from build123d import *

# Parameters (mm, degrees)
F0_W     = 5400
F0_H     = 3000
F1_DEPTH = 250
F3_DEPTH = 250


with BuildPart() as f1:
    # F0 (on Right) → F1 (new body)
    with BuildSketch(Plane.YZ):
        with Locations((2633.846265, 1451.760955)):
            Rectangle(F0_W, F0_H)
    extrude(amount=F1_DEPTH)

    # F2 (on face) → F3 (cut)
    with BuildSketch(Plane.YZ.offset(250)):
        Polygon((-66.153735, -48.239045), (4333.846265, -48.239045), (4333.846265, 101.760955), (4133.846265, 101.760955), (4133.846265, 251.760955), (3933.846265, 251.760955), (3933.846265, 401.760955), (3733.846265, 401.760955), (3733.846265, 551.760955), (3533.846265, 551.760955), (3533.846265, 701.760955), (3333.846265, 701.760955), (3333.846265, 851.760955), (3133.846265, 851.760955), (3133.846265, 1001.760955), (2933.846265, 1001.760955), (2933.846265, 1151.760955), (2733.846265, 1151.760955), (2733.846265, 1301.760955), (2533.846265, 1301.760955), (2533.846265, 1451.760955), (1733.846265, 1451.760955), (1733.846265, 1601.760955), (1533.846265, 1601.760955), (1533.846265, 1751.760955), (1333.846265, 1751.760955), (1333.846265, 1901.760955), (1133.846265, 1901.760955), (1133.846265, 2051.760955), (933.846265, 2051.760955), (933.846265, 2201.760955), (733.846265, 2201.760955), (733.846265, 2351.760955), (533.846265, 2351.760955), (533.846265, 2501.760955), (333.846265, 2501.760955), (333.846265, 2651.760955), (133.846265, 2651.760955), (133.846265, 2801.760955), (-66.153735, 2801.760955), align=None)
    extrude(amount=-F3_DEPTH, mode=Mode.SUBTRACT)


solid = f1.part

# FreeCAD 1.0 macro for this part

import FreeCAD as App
import Part
import Sketcher
Q = App.Units.Quantity

doc = App.newDocument("Part")
body = doc.addObject("PartDesign::Body", "Body")

# Sketch on YZ plane
sketch1 = body.newObject("Sketcher::SketchObject", "Sketch")
sketch1.AttachmentSupport = (doc.getObject("YZ_Plane"), [""])
sketch1.MapMode = "FlatFace"
sketch1.addGeometry([
    Part.LineSegment(App.Vector(-66, 2952, 0), App.Vector(-66, -48, 0)),
    Part.LineSegment(App.Vector(-66, -48, 0), App.Vector(5334, -48, 0)),
    Part.LineSegment(App.Vector(5334, -48, 0), App.Vector(5334, 2952, 0)),
    Part.LineSegment(App.Vector(5334, 2952, 0), App.Vector(-66, 2952, 0)),
], False)
sketch1.addConstraint([
    Sketcher.Constraint("Coincident", 0, 2, 1, 1),
    Sketcher.Constraint("Coincident", 1, 2, 2, 1),
    Sketcher.Constraint("Coincident", 2, 2, 3, 1),
    Sketcher.Constraint("Coincident", 3, 2, 0, 1),
    Sketcher.Constraint("Vertical", 0),
    Sketcher.Constraint("Horizontal", 1),
    Sketcher.Constraint("Vertical", 2),
    Sketcher.Constraint("Horizontal", 3),
    Sketcher.Constraint("DistanceX", 1, 1, 1, 2, Q("5400 mm")),
    Sketcher.Constraint("DistanceY", 0, 2, 0, 1, Q("3000 mm")),
    Sketcher.Constraint("DistanceX", 0, 2, -1, 1, Q("66.153735 mm")),
    Sketcher.Constraint("DistanceY", 0, 2, -1, 1, Q("48.239045 mm")),
])
pad1 = body.newObject("PartDesign::Pad", "Pad")
pad1.Profile = sketch1
pad1.Length = 250

# Sketch on YZ plane
sketch2 = body.newObject("Sketcher::SketchObject", "Sketch001")
sketch2.AttachmentSupport = (doc.getObject("YZ_Plane"), [""])
sketch2.MapMode = "FlatFace"
sketch2.AttachmentOffset = App.Placement(App.Vector(0, 0, 250), App.Rotation())
sketch2.addGeometry([
    Part.LineSegment(App.Vector(-66, -48, 0), App.Vector(4334, -48, 0)),  # 0
    Part.LineSegment(App.Vector(4334, -48, 0), App.Vector(4334, 102, 0)),  # 1
    Part.LineSegment(App.Vector(4334, 102, 0), App.Vector(4134, 102, 0)),  # 2
    Part.LineSegment(App.Vector(4134, 102, 0), App.Vector(4134, 252, 0)),  # 3
    Part.LineSegment(App.Vector(4134, 252, 0), App.Vector(3934, 252, 0)),  # 4
    Part.LineSegment(App.Vector(3934, 252, 0), App.Vector(3934, 402, 0)),  # 5
    Part.LineSegment(App.Vector(3934, 402, 0), App.Vector(3734, 402, 0)),  # 6
    Part.LineSegment(App.Vector(3734, 402, 0), App.Vector(3734, 552, 0)),  # 7
    Part.LineSegment(App.Vector(3734, 552, 0), App.Vector(3534, 552, 0)),  # 8
    Part.LineSegment(App.Vector(3534, 552, 0), App.Vector(3534, 702, 0)),  # 9
    Part.LineSegment(App.Vector(3534, 702, 0), App.Vector(3334, 702, 0)),  # 10
    Part.LineSegment(App.Vector(3334, 702, 0), App.Vector(3334, 852, 0)),  # 11
    Part.LineSegment(App.Vector(3334, 852, 0), App.Vector(3134, 852, 0)),  # 12
    Part.LineSegment(App.Vector(3134, 852, 0), App.Vector(3134, 1002, 0)),  # 13
    Part.LineSegment(App.Vector(3134, 1002, 0), App.Vector(2934, 1002, 0)),  # 14
    Part.LineSegment(App.Vector(2934, 1002, 0), App.Vector(2934, 1152, 0)),  # 15
    Part.LineSegment(App.Vector(2934, 1152, 0), App.Vector(2734, 1152, 0)),  # 16
    Part.LineSegment(App.Vector(2734, 1152, 0), App.Vector(2734, 1302, 0)),  # 17
    Part.LineSegment(App.Vector(2734, 1302, 0), App.Vector(2534, 1302, 0)),  # 18
    Part.LineSegment(App.Vector(2534, 1302, 0), App.Vector(2534, 1452, 0)),  # 19
    Part.LineSegment(App.Vector(2534, 1452, 0), App.Vector(1734, 1452, 0)),  # 20
    Part.LineSegment(App.Vector(1734, 1452, 0), App.Vector(1734, 1602, 0)),  # 21
    Part.LineSegment(App.Vector(1734, 1602, 0), App.Vector(1534, 1602, 0)),  # 22
    Part.LineSegment(App.Vector(1534, 1602, 0), App.Vector(1534, 1752, 0)),  # 23
    Part.LineSegment(App.Vector(1534, 1752, 0), App.Vector(1334, 1752, 0)),  # 24
    Part.LineSegment(App.Vector(1334, 1752, 0), App.Vector(1334, 1902, 0)),  # 25
    Part.LineSegment(App.Vector(1334, 1902, 0), App.Vector(1134, 1902, 0)),  # 26
    Part.LineSegment(App.Vector(1134, 1902, 0), App.Vector(1134, 2052, 0)),  # 27
    Part.LineSegment(App.Vector(1134, 2052, 0), App.Vector(934, 2052, 0)),  # 28
    Part.LineSegment(App.Vector(934, 2052, 0), App.Vector(934, 2202, 0)),  # 29
    Part.LineSegment(App.Vector(934, 2202, 0), App.Vector(734, 2202, 0)),  # 30
    Part.LineSegment(App.Vector(734, 2202, 0), App.Vector(734, 2352, 0)),  # 31
    Part.LineSegment(App.Vector(734, 2352, 0), App.Vector(534, 2352, 0)),  # 32
    Part.LineSegment(App.Vector(534, 2352, 0), App.Vector(534, 2502, 0)),  # 33
    Part.LineSegment(App.Vector(534, 2502, 0), App.Vector(334, 2502, 0)),  # 34
    Part.LineSegment(App.Vector(334, 2502, 0), App.Vector(334, 2652, 0)),  # 35
    Part.LineSegment(App.Vector(334, 2652, 0), App.Vector(134, 2652, 0)),  # 36
    Part.LineSegment(App.Vector(134, 2652, 0), App.Vector(134, 2802, 0)),  # 37
    Part.LineSegment(App.Vector(134, 2802, 0), App.Vector(-66, 2802, 0)),  # 38
    Part.LineSegment(App.Vector(-66, 2802, 0), App.Vector(-66, -48, 0)),  # 39
], False)
sketch2.addConstraint([
    Sketcher.Constraint("Coincident", 0, 2, 1, 1),
    Sketcher.Constraint("Coincident", 1, 2, 2, 1),
    Sketcher.Constraint("Coincident", 2, 2, 3, 1),
    Sketcher.Constraint("Coincident", 3, 2, 4, 1),
    Sketcher.Constraint("Coincident", 4, 2, 5, 1),
    Sketcher.Constraint("Coincident", 5, 2, 6, 1),
    Sketcher.Constraint("Coincident", 6, 2, 7, 1),
    Sketcher.Constraint("Coincident", 7, 2, 8, 1),
    Sketcher.Constraint("Coincident", 8, 2, 9, 1),
    Sketcher.Constraint("Coincident", 9, 2, 10, 1),
    Sketcher.Constraint("Coincident", 10, 2, 11, 1),
    Sketcher.Constraint("Coincident", 11, 2, 12, 1),
    Sketcher.Constraint("Coincident", 12, 2, 13, 1),
    Sketcher.Constraint("Coincident", 13, 2, 14, 1),
    Sketcher.Constraint("Coincident", 14, 2, 15, 1),
    Sketcher.Constraint("Coincident", 15, 2, 16, 1),
    Sketcher.Constraint("Coincident", 16, 2, 17, 1),
    Sketcher.Constraint("Coincident", 17, 2, 18, 1),
    Sketcher.Constraint("Coincident", 18, 2, 19, 1),
    Sketcher.Constraint("Coincident", 19, 2, 20, 1),
    Sketcher.Constraint("Coincident", 20, 2, 21, 1),
    Sketcher.Constraint("Coincident", 21, 2, 22, 1),
    Sketcher.Constraint("Coincident", 22, 2, 23, 1),
    Sketcher.Constraint("Coincident", 23, 2, 24, 1),
    Sketcher.Constraint("Coincident", 24, 2, 25, 1),
    Sketcher.Constraint("Coincident", 25, 2, 26, 1),
    Sketcher.Constraint("Coincident", 26, 2, 27, 1),
    Sketcher.Constraint("Coincident", 27, 2, 28, 1),
    Sketcher.Constraint("Coincident", 28, 2, 29, 1),
    Sketcher.Constraint("Coincident", 29, 2, 30, 1),
    Sketcher.Constraint("Coincident", 30, 2, 31, 1),
    Sketcher.Constraint("Coincident", 31, 2, 32, 1),
    Sketcher.Constraint("Coincident", 32, 2, 33, 1),
    Sketcher.Constraint("Coincident", 33, 2, 34, 1),
    Sketcher.Constraint("Coincident", 34, 2, 35, 1),
    Sketcher.Constraint("Coincident", 35, 2, 36, 1),
    Sketcher.Constraint("Coincident", 36, 2, 37, 1),
    Sketcher.Constraint("Coincident", 37, 2, 38, 1),
    Sketcher.Constraint("Coincident", 38, 2, 39, 1),
    Sketcher.Constraint("Coincident", 39, 2, 0, 1),
    Sketcher.Constraint("Horizontal", 0),
    Sketcher.Constraint("Vertical", 1),
    Sketcher.Constraint("Horizontal", 2),
    Sketcher.Constraint("Vertical", 3),
    Sketcher.Constraint("Horizontal", 4),
    Sketcher.Constraint("Vertical", 5),
    Sketcher.Constraint("Horizontal", 6),
    Sketcher.Constraint("Vertical", 7),
    Sketcher.Constraint("Horizontal", 8),
    Sketcher.Constraint("Vertical", 9),
    Sketcher.Constraint("Horizontal", 10),
    Sketcher.Constraint("Vertical", 11),
    Sketcher.Constraint("Horizontal", 12),
    Sketcher.Constraint("Vertical", 13),
    Sketcher.Constraint("Horizontal", 14),
    Sketcher.Constraint("Vertical", 15),
    Sketcher.Constraint("Horizontal", 16),
    Sketcher.Constraint("Vertical", 17),
    Sketcher.Constraint("Horizontal", 18),
    Sketcher.Constraint("Vertical", 19),
    Sketcher.Constraint("Horizontal", 20),
    Sketcher.Constraint("Vertical", 21),
    Sketcher.Constraint("Horizontal", 22),
    Sketcher.Constraint("Vertical", 23),
    Sketcher.Constraint("Horizontal", 24),
    Sketcher.Constraint("Vertical", 25),
    Sketcher.Constraint("Horizontal", 26),
    Sketcher.Constraint("Vertical", 27),
    Sketcher.Constraint("Horizontal", 28),
    Sketcher.Constraint("Vertical", 29),
    Sketcher.Constraint("Horizontal", 30),
    Sketcher.Constraint("Vertical", 31),
    Sketcher.Constraint("Horizontal", 32),
    Sketcher.Constraint("Vertical", 33),
    Sketcher.Constraint("Horizontal", 34),
    Sketcher.Constraint("Vertical", 35),
    Sketcher.Constraint("Horizontal", 36),
    Sketcher.Constraint("Vertical", 37),
    Sketcher.Constraint("Horizontal", 38),
    Sketcher.Constraint("Vertical", 39),
    Sketcher.Constraint("Equal", 2, 4),
    Sketcher.Constraint("Equal", 4, 6),
    Sketcher.Constraint("Equal", 6, 8),
    Sketcher.Constraint("Equal", 8, 10),
    Sketcher.Constraint("Equal", 10, 12),
    Sketcher.Constraint("Equal", 12, 14),
    Sketcher.Constraint("Equal", 14, 16),
    Sketcher.Constraint("Equal", 16, 18),
    Sketcher.Constraint("Equal", 18, 22),
    Sketcher.Constraint("Equal", 22, 24),
    Sketcher.Constraint("Equal", 24, 26),
    Sketcher.Constraint("Equal", 26, 28),
    Sketcher.Constraint("Equal", 28, 30),
    Sketcher.Constraint("Equal", 30, 32),
    Sketcher.Constraint("Equal", 32, 34),
    Sketcher.Constraint("Equal", 34, 36),
    Sketcher.Constraint("Equal", 36, 38),
    Sketcher.Constraint("Equal", 1, 3),
    Sketcher.Constraint("Equal", 3, 5),
    Sketcher.Constraint("Equal", 5, 7),
    Sketcher.Constraint("Equal", 7, 9),
    Sketcher.Constraint("Equal", 9, 11),
    Sketcher.Constraint("Equal", 11, 13),
    Sketcher.Constraint("Equal", 13, 15),
    Sketcher.Constraint("Equal", 15, 17),
    Sketcher.Constraint("Equal", 17, 19),
    Sketcher.Constraint("Equal", 19, 21),
    Sketcher.Constraint("Equal", 21, 23),
    Sketcher.Constraint("Equal", 23, 25),
    Sketcher.Constraint("Equal", 25, 27),
    Sketcher.Constraint("Equal", 27, 29),
    Sketcher.Constraint("Equal", 29, 31),
    Sketcher.Constraint("Equal", 31, 33),
    Sketcher.Constraint("Equal", 33, 35),
    Sketcher.Constraint("Equal", 35, 37),
    Sketcher.Constraint("DistanceX", 0, 1, 0, 2, Q("4400 mm")),
    Sketcher.Constraint("DistanceX", 2, 2, 2, 1, Q("200 mm")),
    Sketcher.Constraint("DistanceY", 1, 1, 1, 2, Q("150 mm")),
    Sketcher.Constraint("DistanceX", -1, 1, 0, 2, Q("4333.846265 mm")),
    Sketcher.Constraint("DistanceY", 0, 2, -1, 1, Q("48.239045 mm")),
])
pocket1 = body.newObject("PartDesign::Pocket", "Pocket")
pocket1.Profile = sketch2
pocket1.Length = 250

doc.recompute()
